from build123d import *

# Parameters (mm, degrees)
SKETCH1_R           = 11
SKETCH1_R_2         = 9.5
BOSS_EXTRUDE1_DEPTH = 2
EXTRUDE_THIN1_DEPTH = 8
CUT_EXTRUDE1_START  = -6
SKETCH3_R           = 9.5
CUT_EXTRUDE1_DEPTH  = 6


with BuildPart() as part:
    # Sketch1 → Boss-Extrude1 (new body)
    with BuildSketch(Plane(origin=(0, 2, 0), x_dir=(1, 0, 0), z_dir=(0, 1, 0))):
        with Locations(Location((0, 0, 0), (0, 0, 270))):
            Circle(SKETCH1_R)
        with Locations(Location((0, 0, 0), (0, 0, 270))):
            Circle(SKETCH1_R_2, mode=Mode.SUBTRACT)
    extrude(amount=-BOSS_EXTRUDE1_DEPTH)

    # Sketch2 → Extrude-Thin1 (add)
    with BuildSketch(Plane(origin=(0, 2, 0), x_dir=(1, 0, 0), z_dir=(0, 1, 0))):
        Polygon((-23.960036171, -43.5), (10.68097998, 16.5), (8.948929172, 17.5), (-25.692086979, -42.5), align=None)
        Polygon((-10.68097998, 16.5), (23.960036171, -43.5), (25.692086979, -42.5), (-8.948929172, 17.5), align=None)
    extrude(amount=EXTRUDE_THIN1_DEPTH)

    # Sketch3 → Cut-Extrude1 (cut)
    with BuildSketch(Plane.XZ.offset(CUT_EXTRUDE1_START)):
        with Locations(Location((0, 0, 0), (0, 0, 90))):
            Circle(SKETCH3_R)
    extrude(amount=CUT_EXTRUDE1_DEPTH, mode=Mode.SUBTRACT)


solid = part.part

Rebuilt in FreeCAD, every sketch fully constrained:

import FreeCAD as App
import Part
import Sketcher
Q = App.Units.Quantity


def add_polygon(sketch, points):
    """Adds a closed chain of lines whose ends are joined by coincident constraints."""
    first, n = sketch.GeometryCount, len(points)
    for a, b in zip(points, points[1:] + points[:1]):
        sketch.addGeometry(Part.LineSegment(App.Vector(*a, 0), App.Vector(*b, 0)), False)
    for i in range(n):
        sketch.addConstraint(Sketcher.Constraint("Coincident", first + i, 2, first + (i + 1) % n, 1))

doc = App.newDocument("Part")
body = doc.addObject("PartDesign::Body", "Body")

# Sketch on XZ plane
sketch1 = body.newObject("Sketcher::SketchObject", "Sketch")
sketch1.AttachmentSupport = (doc.getObject("XZ_Plane"), [""])
sketch1.MapMode = "FlatFace"
sketch1.AttachmentOffset = App.Placement(App.Vector(0, 0, -2), App.Rotation())
sketch1.addGeometry([
    Part.Circle(App.Vector(0, 0, 0), App.Vector(0, 0, 1), 11),
    Part.Circle(App.Vector(0, 0, 0), App.Vector(0, 0, 1), 10),
], False)
sketch1.addConstraint([
    Sketcher.Constraint("Coincident", 0, 3, -1, 1),
    Sketcher.Constraint("Coincident", 1, 3, -1, 1),
    Sketcher.Constraint("Diameter", 0, 22.0),
    Sketcher.Constraint("Diameter", 1, 19.0),
])
pad1 = body.newObject("PartDesign::Pad", "Pad")
pad1.Profile = sketch1
pad1.Length = 2

# Sketch on XZ plane
sketch2 = body.newObject("Sketcher::SketchObject", "Sketch001")
sketch2.AttachmentSupport = (doc.getObject("XZ_Plane"), [""])
sketch2.MapMode = "FlatFace"
sketch2.AttachmentOffset = App.Placement(App.Vector(0, 0, -2), App.Rotation())
add_polygon(sketch2, [(-25.7, 42.5), (-24, 43.5), (0, 2), (24, 43.5), (25.7, 42.5), (1.2, 0), (10.7, -16.5), (8.9, -17.5), (0, -2), (-8.9, -17.5), (-10.7, -16.5), (-1.2, 0)])  # lines 0-11
sketch2.addConstraint([
    Sketcher.Constraint("Symmetric", 1, 2, 7, 2, -1, 1),
    Sketcher.Constraint("Symmetric", 4, 2, 10, 2, -1, 1),
    Sketcher.Constraint("Symmetric", 0, 2, 2, 2, -2),
    Sketcher.Constraint("Symmetric", 6, 2, 8, 2, -2),
    Sketcher.Constraint("Symmetric", 5, 2, 9, 2, -2),
    Sketcher.Constraint("Symmetric", 3, 2, 11, 2, -2),
    Sketcher.Constraint("PointOnObject", 1, 2, -2),
    Sketcher.Constraint("PointOnObject", 4, 2, -1),
    Sketcher.Constraint("Perpendicular", 0, 1),
    Sketcher.Constraint("Perpendicular", 3, 4),
    Sketcher.Constraint("Parallel", 1, 5),
    Sketcher.Constraint("Perpendicular", 5, 6),
    Sketcher.Constraint("Perpendicular", 6, 7),
    Sketcher.Constraint("Angle", 0, Q("30 deg")),
    Sketcher.Constraint("Distance", 0, 2.0),
    Sketcher.Constraint("DistanceY", -1, 1, 1, 2, 2.0),
    Sketcher.Constraint("DistanceY", 5, 2, 3, 2, 59.0),
    Sketcher.Constraint("DistanceY", -1, 1, 0, 2, 43.5),
])
pad2 = body.newObject("PartDesign::Pad", "Pad001")
pad2.Profile = sketch2
pad2.Length = 8
pad2.Reversed = True

# Sketch on XZ plane
sketch3 = body.newObject("Sketcher::SketchObject", "Sketch002")
sketch3.AttachmentSupport = (doc.getObject("XZ_Plane"), [""])
sketch3.MapMode = "FlatFace"
sketch3.AttachmentOffset = App.Placement(App.Vector(0, 0, -6), App.Rotation())
sketch3.addGeometry(Part.Circle(App.Vector(0, 0, 0), App.Vector(0, 0, 1), 10), False)
sketch3.addConstraint([
    Sketcher.Constraint("Coincident", 0, 3, -1, 1),
    Sketcher.Constraint("Diameter", 0, 19.0),
])
pocket1 = body.newObject("PartDesign::Pocket", "Pocket")
pocket1.Profile = sketch3
pocket1.Length = 6
pocket1.Reversed = True

doc.recompute()
